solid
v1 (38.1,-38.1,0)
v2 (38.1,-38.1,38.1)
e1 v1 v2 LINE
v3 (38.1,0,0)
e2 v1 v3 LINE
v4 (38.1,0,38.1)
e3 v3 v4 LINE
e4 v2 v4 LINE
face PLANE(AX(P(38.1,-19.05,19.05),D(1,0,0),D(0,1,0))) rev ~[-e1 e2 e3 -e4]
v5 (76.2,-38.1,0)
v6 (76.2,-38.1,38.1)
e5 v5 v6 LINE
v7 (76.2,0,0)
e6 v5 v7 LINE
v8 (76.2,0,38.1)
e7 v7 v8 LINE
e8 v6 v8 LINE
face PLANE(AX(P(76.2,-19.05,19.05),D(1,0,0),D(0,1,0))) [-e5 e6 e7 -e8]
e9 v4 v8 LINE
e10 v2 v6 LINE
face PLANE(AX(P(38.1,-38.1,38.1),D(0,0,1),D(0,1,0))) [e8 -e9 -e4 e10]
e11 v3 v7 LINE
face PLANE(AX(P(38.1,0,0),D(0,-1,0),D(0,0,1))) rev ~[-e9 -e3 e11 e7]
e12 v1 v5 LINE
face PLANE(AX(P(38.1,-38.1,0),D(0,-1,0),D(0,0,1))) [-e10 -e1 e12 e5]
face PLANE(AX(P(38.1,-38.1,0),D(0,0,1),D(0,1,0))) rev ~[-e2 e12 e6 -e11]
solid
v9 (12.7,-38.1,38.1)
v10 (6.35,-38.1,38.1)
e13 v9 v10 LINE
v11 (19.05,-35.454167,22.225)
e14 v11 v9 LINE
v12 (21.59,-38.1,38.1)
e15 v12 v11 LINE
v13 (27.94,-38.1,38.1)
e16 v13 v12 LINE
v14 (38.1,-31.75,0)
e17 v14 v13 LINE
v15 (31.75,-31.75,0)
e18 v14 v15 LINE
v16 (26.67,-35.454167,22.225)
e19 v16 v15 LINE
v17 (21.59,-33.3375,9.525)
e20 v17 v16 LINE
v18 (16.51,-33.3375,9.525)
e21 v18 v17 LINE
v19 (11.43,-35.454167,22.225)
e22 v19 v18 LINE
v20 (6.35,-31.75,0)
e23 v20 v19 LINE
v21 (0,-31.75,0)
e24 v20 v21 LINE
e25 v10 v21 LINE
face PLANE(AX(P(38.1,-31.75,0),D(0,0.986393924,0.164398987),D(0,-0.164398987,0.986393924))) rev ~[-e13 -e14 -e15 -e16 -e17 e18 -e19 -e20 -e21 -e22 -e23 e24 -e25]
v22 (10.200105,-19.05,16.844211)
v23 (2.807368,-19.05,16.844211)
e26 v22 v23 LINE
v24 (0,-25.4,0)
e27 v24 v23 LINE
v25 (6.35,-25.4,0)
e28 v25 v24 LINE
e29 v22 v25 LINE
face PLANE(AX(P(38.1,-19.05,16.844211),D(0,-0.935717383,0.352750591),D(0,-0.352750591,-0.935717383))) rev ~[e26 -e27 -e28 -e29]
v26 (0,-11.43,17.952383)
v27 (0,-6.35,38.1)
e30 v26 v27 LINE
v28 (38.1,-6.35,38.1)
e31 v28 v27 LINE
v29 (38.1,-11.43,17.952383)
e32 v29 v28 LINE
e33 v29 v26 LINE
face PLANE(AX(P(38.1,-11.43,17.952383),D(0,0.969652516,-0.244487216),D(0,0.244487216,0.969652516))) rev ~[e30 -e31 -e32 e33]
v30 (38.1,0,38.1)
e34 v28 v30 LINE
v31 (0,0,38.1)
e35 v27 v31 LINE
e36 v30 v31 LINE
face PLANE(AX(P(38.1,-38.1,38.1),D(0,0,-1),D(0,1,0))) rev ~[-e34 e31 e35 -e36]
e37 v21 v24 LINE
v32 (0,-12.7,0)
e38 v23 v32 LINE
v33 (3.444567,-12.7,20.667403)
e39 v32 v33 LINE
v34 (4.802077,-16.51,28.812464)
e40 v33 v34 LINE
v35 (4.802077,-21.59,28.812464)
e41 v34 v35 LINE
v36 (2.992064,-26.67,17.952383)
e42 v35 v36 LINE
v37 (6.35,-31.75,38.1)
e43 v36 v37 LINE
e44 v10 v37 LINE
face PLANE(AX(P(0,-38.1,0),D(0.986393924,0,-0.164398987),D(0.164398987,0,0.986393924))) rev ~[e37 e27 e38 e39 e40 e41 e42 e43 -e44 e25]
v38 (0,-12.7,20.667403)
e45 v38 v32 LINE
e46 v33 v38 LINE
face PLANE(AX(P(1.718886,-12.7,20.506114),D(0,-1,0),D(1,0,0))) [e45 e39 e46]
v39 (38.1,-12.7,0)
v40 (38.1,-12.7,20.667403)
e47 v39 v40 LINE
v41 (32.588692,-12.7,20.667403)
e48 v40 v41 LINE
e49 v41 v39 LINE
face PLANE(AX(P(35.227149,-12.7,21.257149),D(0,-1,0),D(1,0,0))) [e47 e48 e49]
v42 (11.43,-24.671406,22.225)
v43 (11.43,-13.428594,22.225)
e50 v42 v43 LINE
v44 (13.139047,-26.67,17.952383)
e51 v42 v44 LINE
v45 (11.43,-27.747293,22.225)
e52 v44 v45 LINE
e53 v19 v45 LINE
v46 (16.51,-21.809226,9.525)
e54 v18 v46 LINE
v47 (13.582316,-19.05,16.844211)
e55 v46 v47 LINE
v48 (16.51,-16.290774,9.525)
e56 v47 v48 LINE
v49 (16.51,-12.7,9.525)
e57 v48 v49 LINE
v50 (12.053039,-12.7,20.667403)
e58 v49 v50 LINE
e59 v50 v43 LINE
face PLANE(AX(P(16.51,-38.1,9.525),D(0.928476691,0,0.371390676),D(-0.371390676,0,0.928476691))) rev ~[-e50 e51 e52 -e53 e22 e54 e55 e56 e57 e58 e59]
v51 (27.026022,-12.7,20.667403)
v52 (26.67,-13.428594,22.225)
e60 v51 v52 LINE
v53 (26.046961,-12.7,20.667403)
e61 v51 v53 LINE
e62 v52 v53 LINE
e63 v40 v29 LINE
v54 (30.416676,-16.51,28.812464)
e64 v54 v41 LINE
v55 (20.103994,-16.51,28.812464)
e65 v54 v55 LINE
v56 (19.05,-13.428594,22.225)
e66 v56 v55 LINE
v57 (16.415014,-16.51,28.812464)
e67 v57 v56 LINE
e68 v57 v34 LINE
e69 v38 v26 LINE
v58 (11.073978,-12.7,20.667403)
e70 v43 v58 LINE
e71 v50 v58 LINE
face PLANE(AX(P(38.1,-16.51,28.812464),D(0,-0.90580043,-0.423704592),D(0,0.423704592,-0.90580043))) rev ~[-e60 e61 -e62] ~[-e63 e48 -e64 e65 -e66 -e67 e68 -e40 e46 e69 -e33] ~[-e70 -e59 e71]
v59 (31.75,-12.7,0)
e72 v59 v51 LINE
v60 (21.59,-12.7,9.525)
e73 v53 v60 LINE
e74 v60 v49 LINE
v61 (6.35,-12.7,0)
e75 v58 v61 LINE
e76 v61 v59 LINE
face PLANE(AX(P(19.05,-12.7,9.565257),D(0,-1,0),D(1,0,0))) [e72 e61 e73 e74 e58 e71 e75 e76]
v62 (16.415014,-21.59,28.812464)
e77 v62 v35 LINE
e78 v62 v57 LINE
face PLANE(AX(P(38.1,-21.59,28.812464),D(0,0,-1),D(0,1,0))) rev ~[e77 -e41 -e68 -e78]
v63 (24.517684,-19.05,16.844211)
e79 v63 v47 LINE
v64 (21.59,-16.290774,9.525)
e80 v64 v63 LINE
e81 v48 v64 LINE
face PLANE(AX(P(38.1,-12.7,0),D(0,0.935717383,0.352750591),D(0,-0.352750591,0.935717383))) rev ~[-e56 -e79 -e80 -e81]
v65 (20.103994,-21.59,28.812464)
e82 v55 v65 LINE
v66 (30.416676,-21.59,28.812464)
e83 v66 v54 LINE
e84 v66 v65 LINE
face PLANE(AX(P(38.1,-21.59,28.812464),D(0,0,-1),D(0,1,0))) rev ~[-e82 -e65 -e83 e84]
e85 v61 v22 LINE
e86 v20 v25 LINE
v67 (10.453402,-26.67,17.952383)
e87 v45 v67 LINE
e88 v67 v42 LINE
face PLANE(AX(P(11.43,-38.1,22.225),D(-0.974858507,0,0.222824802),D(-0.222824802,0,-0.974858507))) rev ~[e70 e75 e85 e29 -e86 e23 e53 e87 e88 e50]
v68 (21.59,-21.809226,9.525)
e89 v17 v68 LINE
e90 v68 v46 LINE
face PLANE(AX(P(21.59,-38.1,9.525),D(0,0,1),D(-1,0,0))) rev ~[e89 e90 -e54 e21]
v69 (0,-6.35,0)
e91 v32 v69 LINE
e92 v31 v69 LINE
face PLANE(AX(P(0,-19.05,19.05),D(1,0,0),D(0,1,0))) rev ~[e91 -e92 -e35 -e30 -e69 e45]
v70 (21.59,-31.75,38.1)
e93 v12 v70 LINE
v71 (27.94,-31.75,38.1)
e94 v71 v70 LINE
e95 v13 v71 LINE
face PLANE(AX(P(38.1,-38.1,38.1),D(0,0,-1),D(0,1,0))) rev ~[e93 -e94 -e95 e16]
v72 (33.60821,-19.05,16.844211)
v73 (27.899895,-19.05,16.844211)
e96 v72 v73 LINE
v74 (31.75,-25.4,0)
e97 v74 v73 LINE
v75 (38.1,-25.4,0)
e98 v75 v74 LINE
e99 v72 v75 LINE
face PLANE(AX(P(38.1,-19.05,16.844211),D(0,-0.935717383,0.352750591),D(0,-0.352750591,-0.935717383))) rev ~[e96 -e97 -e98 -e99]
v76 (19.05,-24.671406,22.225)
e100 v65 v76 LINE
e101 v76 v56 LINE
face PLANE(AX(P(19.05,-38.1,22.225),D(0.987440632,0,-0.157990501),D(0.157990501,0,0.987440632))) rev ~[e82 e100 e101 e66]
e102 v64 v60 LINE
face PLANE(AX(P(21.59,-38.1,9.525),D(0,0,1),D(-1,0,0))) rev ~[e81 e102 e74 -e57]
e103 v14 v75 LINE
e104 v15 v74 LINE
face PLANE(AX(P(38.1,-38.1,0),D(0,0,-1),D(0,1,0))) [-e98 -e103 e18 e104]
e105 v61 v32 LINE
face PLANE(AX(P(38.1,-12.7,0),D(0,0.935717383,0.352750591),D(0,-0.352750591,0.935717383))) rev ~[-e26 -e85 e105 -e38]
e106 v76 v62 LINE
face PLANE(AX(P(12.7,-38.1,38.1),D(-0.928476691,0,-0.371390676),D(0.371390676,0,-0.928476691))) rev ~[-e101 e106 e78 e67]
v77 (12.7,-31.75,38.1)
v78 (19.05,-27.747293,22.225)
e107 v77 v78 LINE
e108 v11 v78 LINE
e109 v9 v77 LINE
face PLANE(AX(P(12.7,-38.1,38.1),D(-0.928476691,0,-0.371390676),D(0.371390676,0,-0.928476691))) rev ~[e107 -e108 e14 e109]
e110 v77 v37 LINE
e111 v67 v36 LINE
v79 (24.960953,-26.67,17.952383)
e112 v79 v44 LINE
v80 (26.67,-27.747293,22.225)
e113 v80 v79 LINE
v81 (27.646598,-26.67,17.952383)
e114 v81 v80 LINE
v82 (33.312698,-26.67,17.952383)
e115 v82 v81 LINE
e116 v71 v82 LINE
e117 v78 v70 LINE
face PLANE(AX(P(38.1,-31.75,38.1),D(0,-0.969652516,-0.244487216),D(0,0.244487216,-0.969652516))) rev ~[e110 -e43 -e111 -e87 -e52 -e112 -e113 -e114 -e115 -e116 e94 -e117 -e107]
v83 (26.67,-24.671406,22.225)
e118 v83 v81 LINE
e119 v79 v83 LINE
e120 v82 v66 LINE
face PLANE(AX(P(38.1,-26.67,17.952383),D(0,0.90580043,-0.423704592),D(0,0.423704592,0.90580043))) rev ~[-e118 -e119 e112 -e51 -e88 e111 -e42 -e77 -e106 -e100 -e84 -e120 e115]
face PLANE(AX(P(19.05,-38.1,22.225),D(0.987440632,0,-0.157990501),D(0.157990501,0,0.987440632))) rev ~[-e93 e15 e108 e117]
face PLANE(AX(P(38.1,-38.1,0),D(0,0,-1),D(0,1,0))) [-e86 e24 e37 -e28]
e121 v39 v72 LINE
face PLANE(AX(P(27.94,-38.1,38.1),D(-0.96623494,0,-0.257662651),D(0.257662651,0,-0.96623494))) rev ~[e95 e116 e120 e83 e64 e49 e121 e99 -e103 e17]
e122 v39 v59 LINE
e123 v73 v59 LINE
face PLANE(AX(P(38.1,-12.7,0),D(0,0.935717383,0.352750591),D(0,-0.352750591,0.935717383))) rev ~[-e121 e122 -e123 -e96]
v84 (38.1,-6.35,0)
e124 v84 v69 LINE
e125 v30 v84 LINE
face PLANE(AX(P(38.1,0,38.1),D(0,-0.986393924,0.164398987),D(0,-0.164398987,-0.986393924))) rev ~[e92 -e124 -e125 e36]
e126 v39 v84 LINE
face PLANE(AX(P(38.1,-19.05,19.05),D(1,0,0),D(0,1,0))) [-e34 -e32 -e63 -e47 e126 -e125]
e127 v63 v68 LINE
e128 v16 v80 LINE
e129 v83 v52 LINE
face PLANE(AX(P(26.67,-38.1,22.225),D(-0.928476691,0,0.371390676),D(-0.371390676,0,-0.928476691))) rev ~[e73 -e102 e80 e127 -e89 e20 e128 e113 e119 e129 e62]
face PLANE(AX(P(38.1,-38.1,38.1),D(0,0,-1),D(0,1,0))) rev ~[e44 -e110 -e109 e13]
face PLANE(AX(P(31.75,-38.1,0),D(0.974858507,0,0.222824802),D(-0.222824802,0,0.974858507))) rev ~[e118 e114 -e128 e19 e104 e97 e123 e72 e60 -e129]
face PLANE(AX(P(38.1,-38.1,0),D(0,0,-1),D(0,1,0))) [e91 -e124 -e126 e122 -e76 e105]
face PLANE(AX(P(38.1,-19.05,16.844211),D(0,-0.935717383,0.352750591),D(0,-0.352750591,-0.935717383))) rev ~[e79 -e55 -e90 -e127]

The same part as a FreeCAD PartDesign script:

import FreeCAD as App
import Part
import Sketcher
Q = App.Units.Quantity

doc = App.newDocument("Part")
body = doc.addObject("PartDesign::Body", "Body")

sketch1 = body.newObject("Sketcher::SketchObject", "Sketch")
sketch1.AttachmentSupport = (doc.getObject("YZ_Plane"), [""])
sketch1.MapMode = "FlatFace"
sketch1.AttachmentOffset = App.Placement(App.Vector(0, 0, 1.5 * 25.4), App.Rotation())
sketch1.addGeometry([
    Part.LineSegment(App.Vector(-38, 38, 0), App.Vector(-38, 0, 0)),
    Part.LineSegment(App.Vector(-38, 0, 0), App.Vector(0, 0, 0)),
    Part.LineSegment(App.Vector(0, 0, 0), App.Vector(0, 38, 0)),
    Part.LineSegment(App.Vector(0, 38, 0), App.Vector(-38, 38, 0)),
], False)
sketch1.addConstraint([
    Sketcher.Constraint("Coincident", 0, 2, 1, 1),
    Sketcher.Constraint("Coincident", 1, 2, 2, 1),
    Sketcher.Constraint("Coincident", 2, 2, 3, 1),
    Sketcher.Constraint("Coincident", 3, 2, 0, 1),
    Sketcher.Constraint("Vertical", 0),
    Sketcher.Constraint("Horizontal", 1),
    Sketcher.Constraint("Vertical", 2),
    Sketcher.Constraint("Horizontal", 3),
    Sketcher.Constraint("Coincident", 1, 2, -1, 1),
    Sketcher.Constraint("Equal", 3, 0),
    Sketcher.Constraint("DistanceX", 1, 1, 1, 2, Q("1.5 in")),
])
pad1 = body.newObject("PartDesign::Pad", "Pad")
pad1.Profile = sketch1
pad1.Length = Q("1.5 in")
body2 = doc.addObject("PartDesign::Body", "Body001")

sketch2 = body2.newObject("Sketcher::SketchObject", "Sketch001")
sketch2.AttachmentSupport = (doc.getObject("YZ_Plane001"), [""])
sketch2.MapMode = "FlatFace"
sketch2.AttachmentOffset = App.Placement(App.Vector(0, 0, 1.5 * 25.4), App.Rotation())
sketch2.addGeometry([
    Part.LineSegment(App.Vector(-38, 38, 0), App.Vector(-38, 0, 0)),
    Part.LineSegment(App.Vector(-38, 0, 0), App.Vector(0, 0, 0)),
    Part.LineSegment(App.Vector(0, 0, 0), App.Vector(0, 38, 0)),
    Part.LineSegment(App.Vector(0, 38, 0), App.Vector(-38, 38, 0)),
], False)
sketch2.addConstraint([
    Sketcher.Constraint("Coincident", 0, 2, 1, 1),
    Sketcher.Constraint("Coincident", 1, 2, 2, 1),
    Sketcher.Constraint("Coincident", 2, 2, 3, 1),
    Sketcher.Constraint("Coincident", 3, 2, 0, 1),
    Sketcher.Constraint("Vertical", 0),
    Sketcher.Constraint("Horizontal", 1),
    Sketcher.Constraint("Vertical", 2),
    Sketcher.Constraint("Horizontal", 3),
    Sketcher.Constraint("Coincident", 1, 2, -1, 1),
    Sketcher.Constraint("Equal", 3, 0),
    Sketcher.Constraint("DistanceX", 1, 1, 1, 2, Q("1.5 in")),
])
pad2 = body2.newObject("PartDesign::Pad", "Pad001")
pad2.Profile = sketch2
pad2.Length = Q("1.5 in")
pad2.Reversed = True

sketch3 = body2.newObject("Sketcher::SketchObject", "Sketch002")
sketch3.AttachmentSupport = (doc.getObject("YZ_Plane001"), [""])
sketch3.MapMode = "FlatFace"
sketch3.AttachmentOffset = App.Placement(App.Vector(0, 0, 1.5 * 25.4), App.Rotation())
sketch3.addGeometry([
    Part.LineSegment(App.Vector(-6, 38, 0), App.Vector(-32, 38, 0)),
    Part.LineSegment(App.Vector(-32, 38, 0), App.Vector(-27, 18, 0)),
    Part.LineSegment(App.Vector(-27, 18, 0), App.Vector(-22, 29, 0)),
    Part.LineSegment(App.Vector(-22, 29, 0), App.Vector(-17, 29, 0)),
    Part.LineSegment(App.Vector(-17, 29, 0), App.Vector(-11, 18, 0)),
    Part.LineSegment(App.Vector(-11, 18, 0), App.Vector(-6, 38, 0)),
    Part.LineSegment(App.Vector(-32, 0, 0), App.Vector(-38, 38, 0)),
    Part.LineSegment(App.Vector(-38, 38, 0), App.Vector(-38, 0, 0)),
    Part.LineSegment(App.Vector(-38, 0, 0), App.Vector(-32, 0, 0)),
    Part.LineSegment(App.Vector(-19, 17, 0), App.Vector(-25, 0, 0)),
    Part.LineSegment(App.Vector(-25, 0, 0), App.Vector(-13, 0, 0)),
    Part.LineSegment(App.Vector(-13, 0, 0), App.Vector(-19, 17, 0)),
    Part.LineSegment(App.Vector(0, 0, 0), App.Vector(0, 38, 0)),
    Part.LineSegment(App.Vector(0, 38, 0), App.Vector(-6, 0, 0)),
    Part.LineSegment(App.Vector(-6, 0, 0), App.Vector(0, 0, 0)),
], False)
sketch3.addConstraint([
    Sketcher.Constraint("Coincident", 0, 2, 1, 1),
    Sketcher.Constraint("Coincident", 1, 2, 2, 1),
    Sketcher.Constraint("Coincident", 2, 2, 3, 1),
    Sketcher.Constraint("Coincident", 3, 2, 4, 1),
    Sketcher.Constraint("Coincident", 4, 2, 5, 1),
    Sketcher.Constraint("Coincident", 5, 2, 0, 1),
    Sketcher.Constraint("Coincident", 6, 2, 7, 1),
    Sketcher.Constraint("Coincident", 7, 2, 8, 1),
    Sketcher.Constraint("Coincident", 8, 2, 6, 1),
    Sketcher.Constraint("Coincident", 9, 2, 10, 1),
    Sketcher.Constraint("Coincident", 10, 2, 11, 1),
    Sketcher.Constraint("Coincident", 11, 2, 9, 1),
    Sketcher.Constraint("Coincident", 12, 2, 13, 1),
    Sketcher.Constraint("Coincident", 13, 2, 14, 1),
    Sketcher.Constraint("Coincident", 14, 2, 12, 1),
    Sketcher.Constraint("Horizontal", 0),
    Sketcher.Constraint("Horizontal", 3),
    Sketcher.Constraint("Vertical", 7),
    Sketcher.Constraint("Horizontal", 8),
    Sketcher.Constraint("Horizontal", 10),
    Sketcher.Constraint("Vertical", 12),
    Sketcher.Constraint("Horizontal", 14),
    Sketcher.Constraint("Coincident", 14, 2, -1, 1),
    Sketcher.Constraint("PointOnObject", 7, 2, -1),
    Sketcher.Constraint("PointOnObject", 9, 2, -1),
    Sketcher.Constraint("Horizontal", 1, 2, 4, 2),
    Sketcher.Constraint("Horizontal", 5, 2, 6, 2),
    Sketcher.Constraint("Horizontal", 6, 2, 12, 2),
    Sketcher.Constraint("Vertical", 0, 2, 8, 2),
    Sketcher.Constraint("Vertical", 5, 2, 13, 2),
    Sketcher.Constraint("Equal", 8, 14),
    Sketcher.Constraint("Equal", 2, 4),
    Sketcher.Constraint("Equal", 1, 5),
    Sketcher.Constraint("Equal", 9, 11),
    Sketcher.Constraint("DistanceX", 0, 2, 0, 1, Q("1 in")),
    Sketcher.Constraint("DistanceX", 3, 1, 3, 2, Q("0.2 in")),
    Sketcher.Constraint("DistanceX", 10, 1, 10, 2, Q("0.5 in")),
    Sketcher.Constraint("DistanceY", 7, 2, 7, 1, Q("1.5 in")),
    Sketcher.Constraint("DistanceX", 9, 2, -1, 1, Q("1 in")),
    Sketcher.Constraint("DistanceX", 7, 2, 10, 2, Q("1 in")),
    Sketcher.Constraint("DistanceX", 0, 2, 1, 2, Q("0.2 in")),
    Sketcher.Constraint("DistanceY", -1, 1, 11, 2, 16.844211),
    Sketcher.Constraint("DistanceY", 1, 2, 2, 2, 10.860081),
    Sketcher.Constraint("DistanceY", 11, 2, 1, 2, 1.108172),
])
pocket1 = body2.newObject("PartDesign::Pocket", "Pocket")
pocket1.Profile = sketch3
pocket1.Length = Q("1.5 in")

sketch4 = body2.newObject("Sketcher::SketchObject", "Sketch003")
sketch4.AttachmentSupport = (doc.getObject("XZ_Plane001"), [""])
sketch4.MapMode = "FlatFace"
sketch4.AttachmentOffset = App.Placement(App.Vector(0, 0, 1.5 * 25.4), App.Rotation())
sketch4.addGeometry([
    Part.LineSegment(App.Vector(0, 38, 0), App.Vector(0, 0, 0)),
    Part.LineSegment(App.Vector(0, 0, 0), App.Vector(6, 38, 0)),
    Part.LineSegment(App.Vector(6, 38, 0), App.Vector(0, 38, 0)),
    Part.LineSegment(App.Vector(22, 38, 0), App.Vector(13, 38, 0)),
    Part.LineSegment(App.Vector(13, 38, 0), App.Vector(19, 22, 0)),
    Part.LineSegment(App.Vector(19, 22, 0), App.Vector(22, 38, 0)),
    Part.LineSegment(App.Vector(28, 38, 0), App.Vector(38, 0, 0)),
    Part.LineSegment(App.Vector(38, 0, 0), App.Vector(38, 38, 0)),
    Part.LineSegment(App.Vector(38, 38, 0), App.Vector(28, 38, 0)),
    Part.LineSegment(App.Vector(11, 22, 0), App.Vector(6, 0, 0)),
    Part.LineSegment(App.Vector(6, 0, 0), App.Vector(32, 0, 0)),
    Part.LineSegment(App.Vector(32, 0, 0), App.Vector(27, 22, 0)),
    Part.LineSegment(App.Vector(27, 22, 0), App.Vector(22, 10, 0)),
    Part.LineSegment(App.Vector(22, 10, 0), App.Vector(17, 10, 0)),
    Part.LineSegment(App.Vector(17, 10, 0), App.Vector(11, 22, 0)),
], False)
sketch4.addConstraint([
    Sketcher.Constraint("Coincident", 0, 2, 1, 1),
    Sketcher.Constraint("Coincident", 1, 2, 2, 1),
    Sketcher.Constraint("Coincident", 2, 2, 0, 1),
    Sketcher.Constraint("Coincident", 3, 2, 4, 1),
    Sketcher.Constraint("Coincident", 4, 2, 5, 1),
    Sketcher.Constraint("Coincident", 5, 2, 3, 1),
    Sketcher.Constraint("Coincident", 6, 2, 7, 1),
    Sketcher.Constraint("Coincident", 7, 2, 8, 1),
    Sketcher.Constraint("Coincident", 8, 2, 6, 1),
    Sketcher.Constraint("Coincident", 9, 2, 10, 1),
    Sketcher.Constraint("Coincident", 10, 2, 11, 1),
    Sketcher.Constraint("Coincident", 11, 2, 12, 1),
    Sketcher.Constraint("Coincident", 12, 2, 13, 1),
    Sketcher.Constraint("Coincident", 13, 2, 14, 1),
    Sketcher.Constraint("Coincident", 14, 2, 9, 1),
    Sketcher.Constraint("Vertical", 0),
    Sketcher.Constraint("Horizontal", 2),
    Sketcher.Constraint("Horizontal", 3),
    Sketcher.Constraint("Vertical", 7),
    Sketcher.Constraint("Horizontal", 8),
    Sketcher.Constraint("Horizontal", 10),
    Sketcher.Constraint("Horizontal", 13),
    Sketcher.Constraint("Coincident", 0, 2, -1, 1),
    Sketcher.Constraint("PointOnObject", 6, 2, -1),
    Sketcher.Constraint("PointOnObject", 9, 2, -1),
    Sketcher.Constraint("Parallel", 4, 14),
    Sketcher.Constraint("Horizontal", 2, 2, 3, 2),
    Sketcher.Constraint("Horizontal", 5, 2, 7, 2),
    Sketcher.Constraint("Horizontal", 4, 2, 11, 2),
    Sketcher.Constraint("Horizontal", 11, 2, 14, 2),
    Sketcher.Constraint("Vertical", 1, 2, 9, 2),
    Sketcher.Constraint("Vertical", 5, 2, 12, 2),
    Sketcher.Constraint("Equal", 9, 11),
    Sketcher.Constraint("Equal", 12, 14),
    Sketcher.Constraint("DistanceX", 10, 1, 10, 2, Q("1 in")),
    Sketcher.Constraint("DistanceX", 8, 2, 8, 1, Q("0.4 in")),
    Sketcher.Constraint("DistanceX", 13, 2, 13, 1, Q("0.2 in")),
    Sketcher.Constraint("DistanceY", 0, 2, 0, 1, Q("1.5 in")),
    Sketcher.Constraint("DistanceX", 3, 2, 6, 2, Q("1 in")),
    Sketcher.Constraint("DistanceX", 2, 2, 2, 1, Q("0.25 in")),
    Sketcher.Constraint("DistanceX", 3, 2, 3, 1, Q("0.35 in")),
    Sketcher.Constraint("DistanceX", 1, 2, 4, 2, Q("0.5 in")),
    Sketcher.Constraint("DistanceX", 4, 2, 11, 2, Q("0.3 in")),
    Sketcher.Constraint("DistanceY", 12, 2, 4, 2, Q("0.5 in")),
])
pocket2 = body2.newObject("PartDesign::Pocket", "Pocket001")
pocket2.Profile = sketch4
pocket2.Length = Q("1 in")

doc.recompute()
